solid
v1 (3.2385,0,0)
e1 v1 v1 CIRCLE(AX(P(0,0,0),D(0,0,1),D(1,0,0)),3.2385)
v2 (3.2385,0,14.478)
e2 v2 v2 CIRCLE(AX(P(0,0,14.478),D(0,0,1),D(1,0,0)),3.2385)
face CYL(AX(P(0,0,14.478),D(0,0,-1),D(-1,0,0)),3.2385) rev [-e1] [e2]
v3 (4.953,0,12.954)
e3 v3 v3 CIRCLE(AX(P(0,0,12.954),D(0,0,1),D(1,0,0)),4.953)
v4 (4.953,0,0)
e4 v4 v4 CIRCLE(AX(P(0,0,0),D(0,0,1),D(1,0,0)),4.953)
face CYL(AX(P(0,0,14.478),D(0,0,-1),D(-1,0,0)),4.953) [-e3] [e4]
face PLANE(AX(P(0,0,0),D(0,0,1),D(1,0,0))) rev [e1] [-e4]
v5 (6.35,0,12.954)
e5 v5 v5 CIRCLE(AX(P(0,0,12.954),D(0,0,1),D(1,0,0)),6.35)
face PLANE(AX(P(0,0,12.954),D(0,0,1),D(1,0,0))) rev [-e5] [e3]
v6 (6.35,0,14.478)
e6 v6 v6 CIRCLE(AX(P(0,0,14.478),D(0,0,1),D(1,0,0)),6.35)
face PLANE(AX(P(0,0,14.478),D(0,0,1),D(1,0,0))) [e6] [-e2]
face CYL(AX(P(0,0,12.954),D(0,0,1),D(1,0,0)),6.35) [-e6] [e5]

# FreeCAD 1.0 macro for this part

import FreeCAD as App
import Part
import Sketcher
Q = App.Units.Quantity

doc = App.newDocument("Part")
params = doc.addObject("Spreadsheet::Sheet", "Params")
for row, (alias, value) in enumerate([
    ("sketch1_diameter", "0.39 in"),
    ("sketch1_diameter2", "0.255 in"),
    ("pad1_length", "0.57 in"),
    ("sketch2_diameter", "0.5 in"),
    ("sketch2_diameter2", "0.255 in"),
    ("pad2_length", "0.06 in"),
], start=1):
    params.set(f"A{row}", alias)
    params.set(f"B{row}", "=" + value)
    params.setAlias(f"B{row}", alias)

body = doc.addObject("PartDesign::Body", "Body")

sketch1 = body.newObject("Sketcher::SketchObject", "Sketch")
sketch1.AttachmentSupport = (doc.getObject("XY_Plane"), [""])
sketch1.MapMode = "FlatFace"
sketch1.addGeometry(Part.Circle(App.Vector(0, 0, 0), App.Vector(0, 0, 1), 5), False)
sketch1.addGeometry(Part.Circle(App.Vector(0, 0, 0), App.Vector(0, 0, 1), 3.2), False)
sketch1.addConstraint(Sketcher.Constraint("Coincident", 0, 3, -1, 1))
sketch1.addConstraint(Sketcher.Constraint("Coincident", 1, 3, -1, 1))
sketch1.addConstraint(Sketcher.Constraint("Diameter", 0, Q("0.39 in")))
sketch1.addConstraint(Sketcher.Constraint("Diameter", 1, Q("0.255 in")))
sketch1.setExpression("Constraints[2]", "Params.sketch1_diameter")
sketch1.setExpression("Constraints[3]", "Params.sketch1_diameter2")
pad1 = body.newObject("PartDesign::Pad", "Pad")
pad1.Profile = sketch1
pad1.setExpression("Length", "Params.pad1_length")

sketch2 = body.newObject("Sketcher::SketchObject", "Sketch001")
sketch2.AttachmentSupport = (doc.getObject("XY_Plane"), [""])
sketch2.MapMode = "FlatFace"
sketch2.AttachmentOffset = App.Placement(App.Vector(0, 0, 0.57 * 25.4), App.Rotation())
sketch2.addGeometry(Part.Circle(App.Vector(0, 0, 0), App.Vector(0, 0, 1), 6.3), False)
sketch2.addGeometry(Part.Circle(App.Vector(0, 0, 0), App.Vector(0, 0, 1), 3.2), False)
sketch2.addConstraint(Sketcher.Constraint("Coincident", 0, 3, -1, 1))
sketch2.addConstraint(Sketcher.Constraint("Coincident", 1, 3, -1, 1))
sketch2.addConstraint(Sketcher.Constraint("Diameter", 0, Q("0.5 in")))
sketch2.addConstraint(Sketcher.Constraint("Diameter", 1, Q("0.255 in")))
sketch2.setExpression("Constraints[2]", "Params.sketch2_diameter")
sketch2.setExpression("Constraints[3]", "Params.sketch2_diameter2")
pad2 = body.newObject("PartDesign::Pad", "Pad001")
pad2.Profile = sketch2
pad2.setExpression("Length", "Params.pad2_length")
pad2.Reversed = True

doc.recompute()
